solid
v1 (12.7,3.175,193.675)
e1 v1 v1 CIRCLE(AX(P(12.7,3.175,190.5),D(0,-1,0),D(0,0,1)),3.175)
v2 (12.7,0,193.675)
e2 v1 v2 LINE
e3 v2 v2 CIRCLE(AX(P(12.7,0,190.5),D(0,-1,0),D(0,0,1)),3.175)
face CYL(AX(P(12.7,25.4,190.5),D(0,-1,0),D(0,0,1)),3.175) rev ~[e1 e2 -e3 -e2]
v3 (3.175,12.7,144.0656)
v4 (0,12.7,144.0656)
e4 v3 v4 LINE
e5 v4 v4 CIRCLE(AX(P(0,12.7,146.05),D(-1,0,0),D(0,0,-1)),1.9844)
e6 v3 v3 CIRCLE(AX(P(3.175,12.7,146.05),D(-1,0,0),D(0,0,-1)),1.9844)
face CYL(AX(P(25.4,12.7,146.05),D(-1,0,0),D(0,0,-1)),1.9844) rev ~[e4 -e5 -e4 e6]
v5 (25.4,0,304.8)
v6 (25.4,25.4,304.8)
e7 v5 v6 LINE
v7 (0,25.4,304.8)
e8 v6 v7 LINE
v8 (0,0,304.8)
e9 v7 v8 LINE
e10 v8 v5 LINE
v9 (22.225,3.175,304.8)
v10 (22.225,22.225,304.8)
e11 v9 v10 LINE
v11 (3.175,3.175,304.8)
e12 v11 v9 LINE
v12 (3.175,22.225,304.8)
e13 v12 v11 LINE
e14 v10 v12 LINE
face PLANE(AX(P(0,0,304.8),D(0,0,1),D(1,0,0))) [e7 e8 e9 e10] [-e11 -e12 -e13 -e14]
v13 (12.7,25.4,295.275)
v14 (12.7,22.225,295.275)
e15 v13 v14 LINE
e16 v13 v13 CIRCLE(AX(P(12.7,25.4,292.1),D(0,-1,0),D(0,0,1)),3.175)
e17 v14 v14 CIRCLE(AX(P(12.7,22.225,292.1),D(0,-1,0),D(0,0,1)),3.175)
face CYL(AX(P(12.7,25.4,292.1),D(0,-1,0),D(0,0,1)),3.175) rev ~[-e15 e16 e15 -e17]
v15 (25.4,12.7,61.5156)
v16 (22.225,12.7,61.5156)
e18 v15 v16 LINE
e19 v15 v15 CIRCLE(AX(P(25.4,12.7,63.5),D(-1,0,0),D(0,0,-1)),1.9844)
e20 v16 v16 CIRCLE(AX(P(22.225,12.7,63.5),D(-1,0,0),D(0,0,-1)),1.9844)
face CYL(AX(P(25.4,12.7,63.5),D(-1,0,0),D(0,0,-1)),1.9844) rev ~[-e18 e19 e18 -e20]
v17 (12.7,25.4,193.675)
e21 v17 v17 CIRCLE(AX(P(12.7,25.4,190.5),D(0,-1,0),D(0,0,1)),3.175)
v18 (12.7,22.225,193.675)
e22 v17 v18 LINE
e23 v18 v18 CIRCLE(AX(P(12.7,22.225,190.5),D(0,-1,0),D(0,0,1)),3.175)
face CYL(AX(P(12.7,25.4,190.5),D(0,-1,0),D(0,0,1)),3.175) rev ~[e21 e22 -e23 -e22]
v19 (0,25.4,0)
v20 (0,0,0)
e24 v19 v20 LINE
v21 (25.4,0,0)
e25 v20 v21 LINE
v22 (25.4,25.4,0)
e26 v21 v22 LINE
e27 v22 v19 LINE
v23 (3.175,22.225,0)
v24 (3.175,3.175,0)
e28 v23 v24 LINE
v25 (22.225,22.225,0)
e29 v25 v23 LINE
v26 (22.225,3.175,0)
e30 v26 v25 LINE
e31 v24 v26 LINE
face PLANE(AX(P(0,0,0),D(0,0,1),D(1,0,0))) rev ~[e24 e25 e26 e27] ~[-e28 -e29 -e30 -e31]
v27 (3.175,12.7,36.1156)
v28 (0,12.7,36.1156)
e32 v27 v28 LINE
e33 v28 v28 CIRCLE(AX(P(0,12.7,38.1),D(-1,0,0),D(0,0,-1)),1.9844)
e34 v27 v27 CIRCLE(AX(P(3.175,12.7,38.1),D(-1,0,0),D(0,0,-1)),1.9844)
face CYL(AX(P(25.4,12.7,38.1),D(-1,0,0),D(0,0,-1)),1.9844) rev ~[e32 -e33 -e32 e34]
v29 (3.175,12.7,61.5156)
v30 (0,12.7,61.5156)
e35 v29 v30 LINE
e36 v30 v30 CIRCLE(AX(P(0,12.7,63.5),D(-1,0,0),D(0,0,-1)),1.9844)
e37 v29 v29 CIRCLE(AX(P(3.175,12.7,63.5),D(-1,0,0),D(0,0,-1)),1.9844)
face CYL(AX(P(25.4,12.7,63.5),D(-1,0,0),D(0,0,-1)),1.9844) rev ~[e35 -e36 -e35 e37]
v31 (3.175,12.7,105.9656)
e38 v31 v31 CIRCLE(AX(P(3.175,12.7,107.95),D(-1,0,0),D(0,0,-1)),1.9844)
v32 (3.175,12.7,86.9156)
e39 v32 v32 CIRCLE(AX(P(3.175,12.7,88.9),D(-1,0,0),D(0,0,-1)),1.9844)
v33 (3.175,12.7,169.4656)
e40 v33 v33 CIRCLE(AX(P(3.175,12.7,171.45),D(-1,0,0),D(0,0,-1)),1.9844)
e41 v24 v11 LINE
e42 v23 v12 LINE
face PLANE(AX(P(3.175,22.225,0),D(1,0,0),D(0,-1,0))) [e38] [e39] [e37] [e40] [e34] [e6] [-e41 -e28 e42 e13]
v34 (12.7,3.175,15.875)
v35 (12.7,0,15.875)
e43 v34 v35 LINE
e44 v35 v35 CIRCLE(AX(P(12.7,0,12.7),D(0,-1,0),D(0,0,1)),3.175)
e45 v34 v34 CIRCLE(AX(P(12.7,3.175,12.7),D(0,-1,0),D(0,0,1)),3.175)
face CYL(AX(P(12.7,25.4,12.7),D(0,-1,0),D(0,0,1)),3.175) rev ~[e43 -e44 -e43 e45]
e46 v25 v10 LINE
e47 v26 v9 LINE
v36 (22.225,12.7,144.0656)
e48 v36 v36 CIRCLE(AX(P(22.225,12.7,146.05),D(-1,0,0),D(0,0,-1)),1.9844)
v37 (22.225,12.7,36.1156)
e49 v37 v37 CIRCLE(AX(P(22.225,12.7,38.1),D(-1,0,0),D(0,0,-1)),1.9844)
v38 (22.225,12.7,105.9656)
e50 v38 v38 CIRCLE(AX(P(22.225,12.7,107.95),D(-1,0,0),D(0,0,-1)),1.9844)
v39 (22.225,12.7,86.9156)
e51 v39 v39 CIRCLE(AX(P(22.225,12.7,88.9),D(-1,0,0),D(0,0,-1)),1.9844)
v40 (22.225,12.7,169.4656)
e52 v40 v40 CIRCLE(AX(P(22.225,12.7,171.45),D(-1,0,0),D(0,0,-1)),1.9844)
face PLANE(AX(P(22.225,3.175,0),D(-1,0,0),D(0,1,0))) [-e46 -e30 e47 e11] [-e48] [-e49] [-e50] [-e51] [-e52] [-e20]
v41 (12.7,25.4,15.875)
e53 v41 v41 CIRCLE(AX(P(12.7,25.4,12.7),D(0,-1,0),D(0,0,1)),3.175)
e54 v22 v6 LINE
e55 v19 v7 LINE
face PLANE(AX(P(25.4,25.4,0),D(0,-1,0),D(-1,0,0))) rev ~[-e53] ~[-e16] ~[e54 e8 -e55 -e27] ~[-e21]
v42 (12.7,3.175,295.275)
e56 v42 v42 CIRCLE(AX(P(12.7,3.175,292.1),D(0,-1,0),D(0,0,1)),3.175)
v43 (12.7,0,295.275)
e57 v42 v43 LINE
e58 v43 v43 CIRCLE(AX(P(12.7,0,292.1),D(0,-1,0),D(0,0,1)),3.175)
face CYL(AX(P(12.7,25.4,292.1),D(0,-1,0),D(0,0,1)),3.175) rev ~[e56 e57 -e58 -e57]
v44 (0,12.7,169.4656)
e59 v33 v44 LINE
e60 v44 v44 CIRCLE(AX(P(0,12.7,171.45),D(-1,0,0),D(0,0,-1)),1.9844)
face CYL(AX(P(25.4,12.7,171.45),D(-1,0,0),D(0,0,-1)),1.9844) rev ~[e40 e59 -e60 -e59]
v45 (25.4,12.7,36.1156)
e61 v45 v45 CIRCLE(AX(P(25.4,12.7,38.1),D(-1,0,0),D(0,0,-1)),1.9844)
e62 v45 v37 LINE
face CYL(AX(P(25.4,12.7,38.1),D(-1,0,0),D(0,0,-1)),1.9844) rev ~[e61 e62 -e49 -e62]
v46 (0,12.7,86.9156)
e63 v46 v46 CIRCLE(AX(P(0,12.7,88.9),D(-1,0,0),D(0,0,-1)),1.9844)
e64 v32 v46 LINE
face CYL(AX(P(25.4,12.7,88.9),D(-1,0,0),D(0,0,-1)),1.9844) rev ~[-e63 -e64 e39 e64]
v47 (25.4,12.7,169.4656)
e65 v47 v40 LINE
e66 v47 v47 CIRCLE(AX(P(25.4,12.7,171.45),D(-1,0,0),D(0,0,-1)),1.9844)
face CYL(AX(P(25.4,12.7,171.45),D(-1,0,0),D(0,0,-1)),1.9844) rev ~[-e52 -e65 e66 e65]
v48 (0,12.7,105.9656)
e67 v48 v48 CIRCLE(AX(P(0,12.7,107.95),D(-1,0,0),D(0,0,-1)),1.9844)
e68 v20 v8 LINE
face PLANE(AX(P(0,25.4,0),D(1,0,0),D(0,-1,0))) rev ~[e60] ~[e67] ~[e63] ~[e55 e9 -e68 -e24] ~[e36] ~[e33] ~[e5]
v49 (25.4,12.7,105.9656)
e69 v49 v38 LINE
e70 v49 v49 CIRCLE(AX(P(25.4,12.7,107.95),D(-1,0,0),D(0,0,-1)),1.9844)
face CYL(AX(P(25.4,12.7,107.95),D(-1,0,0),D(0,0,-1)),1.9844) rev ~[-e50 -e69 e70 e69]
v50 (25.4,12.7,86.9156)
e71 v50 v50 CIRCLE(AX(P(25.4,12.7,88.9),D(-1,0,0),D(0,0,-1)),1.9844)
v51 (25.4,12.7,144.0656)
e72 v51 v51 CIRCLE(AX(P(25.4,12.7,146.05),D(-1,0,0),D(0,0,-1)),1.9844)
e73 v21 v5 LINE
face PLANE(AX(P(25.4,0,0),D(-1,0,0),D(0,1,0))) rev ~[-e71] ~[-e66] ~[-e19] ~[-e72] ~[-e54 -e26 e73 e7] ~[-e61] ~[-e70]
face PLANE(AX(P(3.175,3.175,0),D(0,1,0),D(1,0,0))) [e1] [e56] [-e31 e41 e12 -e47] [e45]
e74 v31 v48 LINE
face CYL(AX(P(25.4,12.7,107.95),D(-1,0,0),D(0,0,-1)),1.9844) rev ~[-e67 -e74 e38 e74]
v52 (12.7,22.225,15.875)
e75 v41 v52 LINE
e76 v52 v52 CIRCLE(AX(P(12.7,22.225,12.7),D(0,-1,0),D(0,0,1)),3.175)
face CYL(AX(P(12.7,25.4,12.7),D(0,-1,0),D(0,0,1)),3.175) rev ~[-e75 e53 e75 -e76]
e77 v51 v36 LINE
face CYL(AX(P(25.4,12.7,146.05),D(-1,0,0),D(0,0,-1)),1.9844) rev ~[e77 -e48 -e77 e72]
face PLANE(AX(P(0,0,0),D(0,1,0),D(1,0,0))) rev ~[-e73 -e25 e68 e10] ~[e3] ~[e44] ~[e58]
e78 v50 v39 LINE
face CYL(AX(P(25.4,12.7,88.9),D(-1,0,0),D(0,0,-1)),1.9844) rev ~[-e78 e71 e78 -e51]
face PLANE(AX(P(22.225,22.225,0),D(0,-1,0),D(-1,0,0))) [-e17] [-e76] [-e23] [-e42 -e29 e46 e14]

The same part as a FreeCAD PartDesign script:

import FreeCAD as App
import Part
import Sketcher
from FreeCAD import Vector
Q = App.Units.Quantity


def add_polygon(sketch, points):
    """Adds a closed chain of lines whose ends are joined by coincident constraints."""
    first, n = sketch.GeometryCount, len(points)
    for a, b in zip(points, points[1:] + points[:1]):
        sketch.addGeometry(Part.LineSegment(App.Vector(*a, 0), App.Vector(*b, 0)), False)
    for i in range(n):
        sketch.addConstraint(Sketcher.Constraint("Coincident", first + i, 2, first + (i + 1) % n, 1))

doc = App.newDocument("Part")
body = doc.addObject("PartDesign::Body", "Body")

# Sketch on XY plane
sketch1 = body.newObject("Sketcher::SketchObject", "Sketch")
sketch1.AttachmentSupport = (doc.getObject("XY_Plane"), [""])
sketch1.MapMode = "FlatFace"
add_polygon(sketch1, [(0, 25), (0, 0), (25, 0), (25, 25)])  # lines 0-3
add_polygon(sketch1, [(22, 3), (3, 3), (3, 22), (22, 22)])  # lines 4-7
sketch1.addConstraint([
    Sketcher.Constraint("Vertical", 0),
    Sketcher.Constraint("Horizontal", 1),
    Sketcher.Constraint("Vertical", 2),
    Sketcher.Constraint("Horizontal", 3),
    Sketcher.Constraint("Horizontal", 4),
    Sketcher.Constraint("Vertical", 5),
    Sketcher.Constraint("Horizontal", 6),
    Sketcher.Constraint("Vertical", 7),
    Sketcher.Constraint("Coincident", 0, 2, -1, 1),
    Sketcher.Constraint("Equal", 3, 0),
    Sketcher.Constraint("Equal", 6, 5),
    Sketcher.Constraint("DistanceX", 1, 1, 1, 2, Q("1 in")),
    Sketcher.Constraint("DistanceX", 4, 2, 4, 1, Q("0.75 in")),
    Sketcher.Constraint("DistanceX", -1, 1, 4, 2, Q("0.125 in")),
    Sketcher.Constraint("DistanceY", -1, 1, 4, 2, Q("0.125 in")),
])
pad1 = body.newObject("PartDesign::Pad", "Pad")
pad1.Profile = sketch1
pad1.Length = Q("12 in")

# Sketch on YZ plane
sketch2 = body.newObject("Sketcher::SketchObject", "Sketch001")
sketch2.AttachmentSupport = (doc.getObject("YZ_Plane"), [""])
sketch2.MapMode = "FlatFace"
sketch2.AttachmentOffset = App.Placement(Vector(0, 0, 1 * 25.4), App.Rotation())
sketch2.addGeometry([
    Part.Circle(Vector(12.7, 38.1, 0), Vector(0, 0, 1), 2),
    Part.Circle(Vector(12.7, 63.5, 0), Vector(0, 0, 1), 2),
    Part.Circle(Vector(12.7, 88.9, 0), Vector(0, 0, 1), 2),
], False)
sketch2.addConstraint([
    Sketcher.Constraint("Equal", 0, 1),
    Sketcher.Constraint("Equal", 1, 2),
    Sketcher.Constraint("Vertical", 0, 3, 1, 3),
    Sketcher.Constraint("Vertical", 1, 3, 2, 3),
    Sketcher.Constraint("Diameter", 0, Q("0.156252 in")),
    Sketcher.Constraint("DistanceY", 0, 3, 1, 3, Q("1 in")),
    Sketcher.Constraint("DistanceY", 1, 3, 2, 3, Q("1 in")),
    Sketcher.Constraint("DistanceX", -1, 1, 0, 3, Q("0.5 in")),
    Sketcher.Constraint("DistanceY", -1, 1, 0, 3, Q("1.5 in")),
])
doc.recompute()
hole = body.newObject("PartDesign::Hole", "Hole")
hole.Profile = sketch2
hole.ThreadType = "None"
hole.Diameter = Q("0.156252 in")
hole.DepthType = "ThroughAll"

# Sketch on XZ plane
sketch3 = body.newObject("Sketcher::SketchObject", "Sketch002")
sketch3.AttachmentSupport = (doc.getObject("XZ_Plane"), [""])
sketch3.MapMode = "FlatFace"
sketch3.AttachmentOffset = App.Placement(Vector(0, 0, -1 * 25.4), App.Rotation())
sketch3.addGeometry([
    Part.Circle(Vector(12.7, 292.1, 0), Vector(0, 0, 1), 3.2),
    Part.Circle(Vector(12.7, 12.7, 0), Vector(0, 0, 1), 3.2),
    Part.Circle(Vector(12.7, 190.5, 0), Vector(0, 0, 1), 3.2),
], False)
sketch3.addConstraint([
    Sketcher.Constraint("Equal", 0, 1),
    Sketcher.Constraint("Equal", 1, 2),
    Sketcher.Constraint("Vertical", 0, 3, 1, 3),
    Sketcher.Constraint("Vertical", 1, 3, 2, 3),
    Sketcher.Constraint("Diameter", 0, Q("0.25 in")),
    Sketcher.Constraint("DistanceY", 1, 3, 0, 3, Q("11 in")),
    Sketcher.Constraint("DistanceY", 2, 3, 0, 3, Q("4 in")),
    Sketcher.Constraint("DistanceX", -1, 1, 0, 3, Q("0.5 in")),
    Sketcher.Constraint("DistanceY", -1, 1, 0, 3, Q("11.5 in")),
])
doc.recompute()
hole2 = body.newObject("PartDesign::Hole", "Hole001")
hole2.Profile = sketch3
hole2.ThreadType = "None"
hole2.Diameter = Q("0.25 in")
hole2.DepthType = "ThroughAll"
hole2.Reversed = True

# Sketch on YZ plane
sketch4 = body.newObject("Sketcher::SketchObject", "Sketch003")
sketch4.AttachmentSupport = (doc.getObject("YZ_Plane"), [""])
sketch4.MapMode = "FlatFace"
sketch4.AttachmentOffset = App.Placement(Vector(0, 0, 1 * 25.4), App.Rotation())
sketch4.addGeometry([
    Part.Circle(Vector(12.7, 171.4, 0), Vector(0, 0, 1), 2),
    Part.Circle(Vector(12.7, 108, 0), Vector(0, 0, 1), 2),
    Part.Circle(Vector(12.7, 146.1, 0), Vector(0, 0, 1), 2),
], False)
sketch4.addConstraint([
    Sketcher.Constraint("Equal", 0, 1),
    Sketcher.Constraint("Equal", 1, 2),
    Sketcher.Constraint("Vertical", 0, 3, 1, 3),
    Sketcher.Constraint("Vertical", 1, 3, 2, 3),
    Sketcher.Constraint("Diameter", 0, Q("0.156252 in")),
    Sketcher.Constraint("DistanceY", 2, 3, 0, 3, Q("1 in")),
    Sketcher.Constraint("DistanceX", -1, 1, 0, 3, Q("0.5 in")),
    Sketcher.Constraint("DistanceY", 1, 3, 0, 3, Q("2.5 in")),
    Sketcher.Constraint("DistanceY", -1, 1, 0, 3, Q("6.75 in")),
])
doc.recompute()
hole3 = body.newObject("PartDesign::Hole", "Hole002")
hole3.Profile = sketch4
hole3.ThreadType = "None"
hole3.Diameter = Q("0.156252 in")
hole3.DepthType = "ThroughAll"

doc.recompute()
